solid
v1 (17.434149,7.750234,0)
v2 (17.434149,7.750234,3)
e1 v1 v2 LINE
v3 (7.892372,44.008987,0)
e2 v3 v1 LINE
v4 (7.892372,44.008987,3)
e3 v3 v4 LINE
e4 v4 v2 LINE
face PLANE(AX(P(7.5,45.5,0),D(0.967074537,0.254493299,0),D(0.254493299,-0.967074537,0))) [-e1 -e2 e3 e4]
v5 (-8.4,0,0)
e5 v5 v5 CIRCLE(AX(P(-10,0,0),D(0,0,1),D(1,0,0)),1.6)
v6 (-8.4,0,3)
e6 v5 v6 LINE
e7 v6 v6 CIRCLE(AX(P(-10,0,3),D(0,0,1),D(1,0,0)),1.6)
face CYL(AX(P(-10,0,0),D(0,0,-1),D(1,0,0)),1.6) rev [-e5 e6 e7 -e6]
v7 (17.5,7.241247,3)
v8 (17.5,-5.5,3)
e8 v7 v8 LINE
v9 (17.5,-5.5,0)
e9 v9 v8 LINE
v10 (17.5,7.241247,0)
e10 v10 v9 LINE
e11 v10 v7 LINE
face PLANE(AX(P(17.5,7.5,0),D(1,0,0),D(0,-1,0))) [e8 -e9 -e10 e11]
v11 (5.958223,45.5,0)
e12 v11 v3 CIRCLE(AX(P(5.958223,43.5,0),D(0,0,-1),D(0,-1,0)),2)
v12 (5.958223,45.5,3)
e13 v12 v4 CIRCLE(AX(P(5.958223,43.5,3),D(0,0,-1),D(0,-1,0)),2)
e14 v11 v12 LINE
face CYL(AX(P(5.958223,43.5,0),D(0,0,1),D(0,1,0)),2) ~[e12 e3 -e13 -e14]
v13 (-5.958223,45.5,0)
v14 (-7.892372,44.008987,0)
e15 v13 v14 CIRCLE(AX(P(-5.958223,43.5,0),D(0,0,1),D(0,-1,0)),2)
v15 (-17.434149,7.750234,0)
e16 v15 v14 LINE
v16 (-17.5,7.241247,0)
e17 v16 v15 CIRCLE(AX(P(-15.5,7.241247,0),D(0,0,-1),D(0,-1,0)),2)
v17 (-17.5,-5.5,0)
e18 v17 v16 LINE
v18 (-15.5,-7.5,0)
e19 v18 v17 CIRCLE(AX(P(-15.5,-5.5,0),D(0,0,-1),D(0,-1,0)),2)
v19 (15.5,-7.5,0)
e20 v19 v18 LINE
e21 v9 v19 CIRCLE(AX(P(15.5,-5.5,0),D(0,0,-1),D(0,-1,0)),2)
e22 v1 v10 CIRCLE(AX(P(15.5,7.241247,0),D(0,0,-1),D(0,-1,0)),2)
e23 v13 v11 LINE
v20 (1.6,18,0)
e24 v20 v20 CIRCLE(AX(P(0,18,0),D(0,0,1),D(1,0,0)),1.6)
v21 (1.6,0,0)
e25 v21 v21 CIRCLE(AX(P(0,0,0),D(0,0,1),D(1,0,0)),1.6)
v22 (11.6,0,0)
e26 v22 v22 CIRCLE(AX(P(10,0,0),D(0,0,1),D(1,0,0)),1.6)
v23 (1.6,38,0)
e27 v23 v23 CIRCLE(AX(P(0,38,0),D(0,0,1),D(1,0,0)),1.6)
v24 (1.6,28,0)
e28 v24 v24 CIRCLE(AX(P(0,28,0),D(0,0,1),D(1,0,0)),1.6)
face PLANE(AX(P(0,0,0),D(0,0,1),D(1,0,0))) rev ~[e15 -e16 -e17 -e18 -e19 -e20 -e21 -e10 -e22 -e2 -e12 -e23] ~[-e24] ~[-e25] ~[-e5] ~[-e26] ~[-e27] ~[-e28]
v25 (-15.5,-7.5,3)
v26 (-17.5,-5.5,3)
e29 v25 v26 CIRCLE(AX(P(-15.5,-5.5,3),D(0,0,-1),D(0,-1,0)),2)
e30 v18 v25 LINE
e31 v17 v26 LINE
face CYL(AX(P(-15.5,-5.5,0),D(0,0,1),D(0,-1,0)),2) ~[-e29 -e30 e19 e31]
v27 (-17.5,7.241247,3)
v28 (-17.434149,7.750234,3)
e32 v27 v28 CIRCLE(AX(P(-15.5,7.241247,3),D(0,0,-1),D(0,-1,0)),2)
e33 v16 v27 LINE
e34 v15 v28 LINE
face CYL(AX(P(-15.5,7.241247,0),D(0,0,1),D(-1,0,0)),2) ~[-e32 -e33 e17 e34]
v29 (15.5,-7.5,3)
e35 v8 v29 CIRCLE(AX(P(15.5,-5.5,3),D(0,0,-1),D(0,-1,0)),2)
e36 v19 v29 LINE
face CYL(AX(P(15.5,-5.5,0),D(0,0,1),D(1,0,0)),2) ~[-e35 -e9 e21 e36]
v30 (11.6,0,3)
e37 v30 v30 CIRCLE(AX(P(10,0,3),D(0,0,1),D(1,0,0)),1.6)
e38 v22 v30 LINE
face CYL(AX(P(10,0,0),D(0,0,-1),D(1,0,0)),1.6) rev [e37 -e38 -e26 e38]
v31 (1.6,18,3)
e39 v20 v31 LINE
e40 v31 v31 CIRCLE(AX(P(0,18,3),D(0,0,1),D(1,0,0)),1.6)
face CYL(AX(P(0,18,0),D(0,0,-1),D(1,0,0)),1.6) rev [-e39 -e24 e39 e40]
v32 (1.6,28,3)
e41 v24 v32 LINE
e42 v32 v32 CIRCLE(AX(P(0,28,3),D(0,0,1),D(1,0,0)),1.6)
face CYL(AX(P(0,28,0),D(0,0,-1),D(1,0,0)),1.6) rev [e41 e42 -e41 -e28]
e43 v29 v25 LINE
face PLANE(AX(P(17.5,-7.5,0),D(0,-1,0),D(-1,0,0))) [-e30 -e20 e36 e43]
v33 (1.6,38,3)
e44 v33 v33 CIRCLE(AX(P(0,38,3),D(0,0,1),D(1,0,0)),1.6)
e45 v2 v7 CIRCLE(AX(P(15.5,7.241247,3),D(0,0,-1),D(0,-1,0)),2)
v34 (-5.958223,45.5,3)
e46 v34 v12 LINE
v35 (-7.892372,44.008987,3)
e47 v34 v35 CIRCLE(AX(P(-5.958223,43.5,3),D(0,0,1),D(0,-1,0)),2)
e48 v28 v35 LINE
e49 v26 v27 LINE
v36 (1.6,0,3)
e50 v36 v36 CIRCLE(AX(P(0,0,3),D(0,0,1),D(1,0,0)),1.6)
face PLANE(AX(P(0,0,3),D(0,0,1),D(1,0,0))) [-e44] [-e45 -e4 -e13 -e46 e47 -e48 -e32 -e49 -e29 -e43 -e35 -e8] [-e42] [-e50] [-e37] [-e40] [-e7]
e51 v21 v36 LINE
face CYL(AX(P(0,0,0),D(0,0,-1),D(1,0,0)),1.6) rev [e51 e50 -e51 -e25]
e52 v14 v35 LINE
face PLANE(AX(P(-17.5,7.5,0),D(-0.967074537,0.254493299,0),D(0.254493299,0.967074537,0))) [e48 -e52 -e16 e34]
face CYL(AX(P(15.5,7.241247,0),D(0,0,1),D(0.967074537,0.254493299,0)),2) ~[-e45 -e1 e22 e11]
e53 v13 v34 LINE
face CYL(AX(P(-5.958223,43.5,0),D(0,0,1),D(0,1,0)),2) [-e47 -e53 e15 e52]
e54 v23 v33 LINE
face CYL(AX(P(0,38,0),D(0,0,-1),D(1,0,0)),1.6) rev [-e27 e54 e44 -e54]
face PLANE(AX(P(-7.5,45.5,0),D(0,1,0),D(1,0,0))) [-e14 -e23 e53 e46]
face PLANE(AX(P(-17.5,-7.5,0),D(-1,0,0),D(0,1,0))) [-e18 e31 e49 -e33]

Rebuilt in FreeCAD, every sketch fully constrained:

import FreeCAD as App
import Part
import Sketcher

V = App.Vector


def edges_at(feature, points):
    """Names of the edges that pass closest to the given points."""
    edges = feature.Shape.Edges
    near = lambda p: min(range(len(edges)), key=lambda i: edges[i].distToShape(Part.Vertex(*p))[0])
    return sorted({f"Edge{near(p) + 1}" for p in points})


def add_polygon(sketch, points):
    """Adds a closed chain of lines whose ends are joined by coincident constraints."""
    first, n = sketch.GeometryCount, len(points)
    for a, b in zip(points, points[1:] + points[:1]):
        sketch.addGeometry(Part.LineSegment(App.Vector(*a, 0), App.Vector(*b, 0)), False)
    for i in range(n):
        sketch.addConstraint(Sketcher.Constraint("Coincident", first + i, 2, first + (i + 1) % n, 1))

doc = App.newDocument("Part")
body = doc.addObject("PartDesign::Body", "Body")

# Sketch on XY plane
sketch1 = body.newObject("Sketcher::SketchObject", "Sketch")
sketch1.AttachmentSupport = (doc.getObject("XY_Plane"), [""])
sketch1.MapMode = "FlatFace"
add_polygon(sketch1, [(7.5, 45.5), (-7.5, 45.5), (-17.5, 7.5), (-17.5, -7.5), (17.5, -7.5), (17.5, 7.5)])  # lines 0-5
sketch1.addGeometry(Part.Circle(V(-10, 0, 0), V(0, 0, 1), 1.6), False)  # 6
sketch1.addGeometry(Part.Circle(V(0, 0, 0), V(0, 0, 1), 1.6), False)  # 7
sketch1.addGeometry(Part.Circle(V(10, 0, 0), V(0, 0, 1), 1.6), False)  # 8
sketch1.addGeometry(Part.Circle(V(0, 18, 0), V(0, 0, 1), 1.6), False)  # 9
sketch1.addGeometry(Part.Circle(V(0, 28, 0), V(0, 0, 1), 1.6), False)  # 10
sketch1.addGeometry(Part.Circle(V(0, 38, 0), V(0, 0, 1), 1.6), False)  # 11
sketch1.addConstraint([
    Sketcher.Constraint("Horizontal", 0),
    Sketcher.Constraint("Vertical", 2),
    Sketcher.Constraint("Horizontal", 3),
    Sketcher.Constraint("Vertical", 4),
    Sketcher.Constraint("Coincident", 7, 3, -1, 1),
    Sketcher.Constraint("Equal", 6, 7),
    Sketcher.Constraint("Equal", 7, 8),
    Sketcher.Constraint("Equal", 8, 9),
    Sketcher.Constraint("Equal", 9, 10),
    Sketcher.Constraint("Equal", 10, 11),
    Sketcher.Constraint("Symmetric", 6, 3, 8, 3, -1, 1),
    Sketcher.Constraint("Symmetric", 1, 2, 3, 2, -1, 1),
    Sketcher.Constraint("PointOnObject", 6, 3, -1),
    Sketcher.Constraint("PointOnObject", 9, 3, -2),
    Sketcher.Constraint("PointOnObject", 10, 3, -2),
    Sketcher.Constraint("PointOnObject", 11, 3, -2),
    Sketcher.Constraint("Horizontal", 1, 2, 4, 2),
    Sketcher.Constraint("Equal", 0, 2),
    Sketcher.Constraint("Equal", 1, 5),
    Sketcher.Constraint("Diameter", 6, 3.2),
    Sketcher.Constraint("DistanceX", 6, 3, -1, 1, 10.0),
    Sketcher.Constraint("DistanceY", -1, 1, 9, 3, 18.0),
    Sketcher.Constraint("DistanceY", 9, 3, 10, 3, 10.0),
    Sketcher.Constraint("DistanceY", 10, 3, 11, 3, 10.0),
    Sketcher.Constraint("DistanceX", 5, 2, 4, 2, 10.0),
    Sketcher.Constraint("DistanceX", 0, 2, -1, 1, 7.5),
    Sketcher.Constraint("DistanceY", 11, 3, 0, 2, 7.5),
])
pad1 = body.newObject("PartDesign::Pad", "Pad")
pad1.Profile = sketch1
pad1.Length = 3
doc.recompute()

fillet = body.newObject("PartDesign::Fillet", "Fillet")
fillet.Base = (pad1, edges_at(pad1, [
    (-7.5, 45.5, 1.5),
    (7.5, 45.5, 1.5),
    (17.5, 7.5, 1.5),
    (17.5, -7.5, 1.5),
    (-17.5, -7.5, 1.5),
    (-17.5, 7.5, 1.5),
]))
fillet.Radius = 2

doc.recompute()
